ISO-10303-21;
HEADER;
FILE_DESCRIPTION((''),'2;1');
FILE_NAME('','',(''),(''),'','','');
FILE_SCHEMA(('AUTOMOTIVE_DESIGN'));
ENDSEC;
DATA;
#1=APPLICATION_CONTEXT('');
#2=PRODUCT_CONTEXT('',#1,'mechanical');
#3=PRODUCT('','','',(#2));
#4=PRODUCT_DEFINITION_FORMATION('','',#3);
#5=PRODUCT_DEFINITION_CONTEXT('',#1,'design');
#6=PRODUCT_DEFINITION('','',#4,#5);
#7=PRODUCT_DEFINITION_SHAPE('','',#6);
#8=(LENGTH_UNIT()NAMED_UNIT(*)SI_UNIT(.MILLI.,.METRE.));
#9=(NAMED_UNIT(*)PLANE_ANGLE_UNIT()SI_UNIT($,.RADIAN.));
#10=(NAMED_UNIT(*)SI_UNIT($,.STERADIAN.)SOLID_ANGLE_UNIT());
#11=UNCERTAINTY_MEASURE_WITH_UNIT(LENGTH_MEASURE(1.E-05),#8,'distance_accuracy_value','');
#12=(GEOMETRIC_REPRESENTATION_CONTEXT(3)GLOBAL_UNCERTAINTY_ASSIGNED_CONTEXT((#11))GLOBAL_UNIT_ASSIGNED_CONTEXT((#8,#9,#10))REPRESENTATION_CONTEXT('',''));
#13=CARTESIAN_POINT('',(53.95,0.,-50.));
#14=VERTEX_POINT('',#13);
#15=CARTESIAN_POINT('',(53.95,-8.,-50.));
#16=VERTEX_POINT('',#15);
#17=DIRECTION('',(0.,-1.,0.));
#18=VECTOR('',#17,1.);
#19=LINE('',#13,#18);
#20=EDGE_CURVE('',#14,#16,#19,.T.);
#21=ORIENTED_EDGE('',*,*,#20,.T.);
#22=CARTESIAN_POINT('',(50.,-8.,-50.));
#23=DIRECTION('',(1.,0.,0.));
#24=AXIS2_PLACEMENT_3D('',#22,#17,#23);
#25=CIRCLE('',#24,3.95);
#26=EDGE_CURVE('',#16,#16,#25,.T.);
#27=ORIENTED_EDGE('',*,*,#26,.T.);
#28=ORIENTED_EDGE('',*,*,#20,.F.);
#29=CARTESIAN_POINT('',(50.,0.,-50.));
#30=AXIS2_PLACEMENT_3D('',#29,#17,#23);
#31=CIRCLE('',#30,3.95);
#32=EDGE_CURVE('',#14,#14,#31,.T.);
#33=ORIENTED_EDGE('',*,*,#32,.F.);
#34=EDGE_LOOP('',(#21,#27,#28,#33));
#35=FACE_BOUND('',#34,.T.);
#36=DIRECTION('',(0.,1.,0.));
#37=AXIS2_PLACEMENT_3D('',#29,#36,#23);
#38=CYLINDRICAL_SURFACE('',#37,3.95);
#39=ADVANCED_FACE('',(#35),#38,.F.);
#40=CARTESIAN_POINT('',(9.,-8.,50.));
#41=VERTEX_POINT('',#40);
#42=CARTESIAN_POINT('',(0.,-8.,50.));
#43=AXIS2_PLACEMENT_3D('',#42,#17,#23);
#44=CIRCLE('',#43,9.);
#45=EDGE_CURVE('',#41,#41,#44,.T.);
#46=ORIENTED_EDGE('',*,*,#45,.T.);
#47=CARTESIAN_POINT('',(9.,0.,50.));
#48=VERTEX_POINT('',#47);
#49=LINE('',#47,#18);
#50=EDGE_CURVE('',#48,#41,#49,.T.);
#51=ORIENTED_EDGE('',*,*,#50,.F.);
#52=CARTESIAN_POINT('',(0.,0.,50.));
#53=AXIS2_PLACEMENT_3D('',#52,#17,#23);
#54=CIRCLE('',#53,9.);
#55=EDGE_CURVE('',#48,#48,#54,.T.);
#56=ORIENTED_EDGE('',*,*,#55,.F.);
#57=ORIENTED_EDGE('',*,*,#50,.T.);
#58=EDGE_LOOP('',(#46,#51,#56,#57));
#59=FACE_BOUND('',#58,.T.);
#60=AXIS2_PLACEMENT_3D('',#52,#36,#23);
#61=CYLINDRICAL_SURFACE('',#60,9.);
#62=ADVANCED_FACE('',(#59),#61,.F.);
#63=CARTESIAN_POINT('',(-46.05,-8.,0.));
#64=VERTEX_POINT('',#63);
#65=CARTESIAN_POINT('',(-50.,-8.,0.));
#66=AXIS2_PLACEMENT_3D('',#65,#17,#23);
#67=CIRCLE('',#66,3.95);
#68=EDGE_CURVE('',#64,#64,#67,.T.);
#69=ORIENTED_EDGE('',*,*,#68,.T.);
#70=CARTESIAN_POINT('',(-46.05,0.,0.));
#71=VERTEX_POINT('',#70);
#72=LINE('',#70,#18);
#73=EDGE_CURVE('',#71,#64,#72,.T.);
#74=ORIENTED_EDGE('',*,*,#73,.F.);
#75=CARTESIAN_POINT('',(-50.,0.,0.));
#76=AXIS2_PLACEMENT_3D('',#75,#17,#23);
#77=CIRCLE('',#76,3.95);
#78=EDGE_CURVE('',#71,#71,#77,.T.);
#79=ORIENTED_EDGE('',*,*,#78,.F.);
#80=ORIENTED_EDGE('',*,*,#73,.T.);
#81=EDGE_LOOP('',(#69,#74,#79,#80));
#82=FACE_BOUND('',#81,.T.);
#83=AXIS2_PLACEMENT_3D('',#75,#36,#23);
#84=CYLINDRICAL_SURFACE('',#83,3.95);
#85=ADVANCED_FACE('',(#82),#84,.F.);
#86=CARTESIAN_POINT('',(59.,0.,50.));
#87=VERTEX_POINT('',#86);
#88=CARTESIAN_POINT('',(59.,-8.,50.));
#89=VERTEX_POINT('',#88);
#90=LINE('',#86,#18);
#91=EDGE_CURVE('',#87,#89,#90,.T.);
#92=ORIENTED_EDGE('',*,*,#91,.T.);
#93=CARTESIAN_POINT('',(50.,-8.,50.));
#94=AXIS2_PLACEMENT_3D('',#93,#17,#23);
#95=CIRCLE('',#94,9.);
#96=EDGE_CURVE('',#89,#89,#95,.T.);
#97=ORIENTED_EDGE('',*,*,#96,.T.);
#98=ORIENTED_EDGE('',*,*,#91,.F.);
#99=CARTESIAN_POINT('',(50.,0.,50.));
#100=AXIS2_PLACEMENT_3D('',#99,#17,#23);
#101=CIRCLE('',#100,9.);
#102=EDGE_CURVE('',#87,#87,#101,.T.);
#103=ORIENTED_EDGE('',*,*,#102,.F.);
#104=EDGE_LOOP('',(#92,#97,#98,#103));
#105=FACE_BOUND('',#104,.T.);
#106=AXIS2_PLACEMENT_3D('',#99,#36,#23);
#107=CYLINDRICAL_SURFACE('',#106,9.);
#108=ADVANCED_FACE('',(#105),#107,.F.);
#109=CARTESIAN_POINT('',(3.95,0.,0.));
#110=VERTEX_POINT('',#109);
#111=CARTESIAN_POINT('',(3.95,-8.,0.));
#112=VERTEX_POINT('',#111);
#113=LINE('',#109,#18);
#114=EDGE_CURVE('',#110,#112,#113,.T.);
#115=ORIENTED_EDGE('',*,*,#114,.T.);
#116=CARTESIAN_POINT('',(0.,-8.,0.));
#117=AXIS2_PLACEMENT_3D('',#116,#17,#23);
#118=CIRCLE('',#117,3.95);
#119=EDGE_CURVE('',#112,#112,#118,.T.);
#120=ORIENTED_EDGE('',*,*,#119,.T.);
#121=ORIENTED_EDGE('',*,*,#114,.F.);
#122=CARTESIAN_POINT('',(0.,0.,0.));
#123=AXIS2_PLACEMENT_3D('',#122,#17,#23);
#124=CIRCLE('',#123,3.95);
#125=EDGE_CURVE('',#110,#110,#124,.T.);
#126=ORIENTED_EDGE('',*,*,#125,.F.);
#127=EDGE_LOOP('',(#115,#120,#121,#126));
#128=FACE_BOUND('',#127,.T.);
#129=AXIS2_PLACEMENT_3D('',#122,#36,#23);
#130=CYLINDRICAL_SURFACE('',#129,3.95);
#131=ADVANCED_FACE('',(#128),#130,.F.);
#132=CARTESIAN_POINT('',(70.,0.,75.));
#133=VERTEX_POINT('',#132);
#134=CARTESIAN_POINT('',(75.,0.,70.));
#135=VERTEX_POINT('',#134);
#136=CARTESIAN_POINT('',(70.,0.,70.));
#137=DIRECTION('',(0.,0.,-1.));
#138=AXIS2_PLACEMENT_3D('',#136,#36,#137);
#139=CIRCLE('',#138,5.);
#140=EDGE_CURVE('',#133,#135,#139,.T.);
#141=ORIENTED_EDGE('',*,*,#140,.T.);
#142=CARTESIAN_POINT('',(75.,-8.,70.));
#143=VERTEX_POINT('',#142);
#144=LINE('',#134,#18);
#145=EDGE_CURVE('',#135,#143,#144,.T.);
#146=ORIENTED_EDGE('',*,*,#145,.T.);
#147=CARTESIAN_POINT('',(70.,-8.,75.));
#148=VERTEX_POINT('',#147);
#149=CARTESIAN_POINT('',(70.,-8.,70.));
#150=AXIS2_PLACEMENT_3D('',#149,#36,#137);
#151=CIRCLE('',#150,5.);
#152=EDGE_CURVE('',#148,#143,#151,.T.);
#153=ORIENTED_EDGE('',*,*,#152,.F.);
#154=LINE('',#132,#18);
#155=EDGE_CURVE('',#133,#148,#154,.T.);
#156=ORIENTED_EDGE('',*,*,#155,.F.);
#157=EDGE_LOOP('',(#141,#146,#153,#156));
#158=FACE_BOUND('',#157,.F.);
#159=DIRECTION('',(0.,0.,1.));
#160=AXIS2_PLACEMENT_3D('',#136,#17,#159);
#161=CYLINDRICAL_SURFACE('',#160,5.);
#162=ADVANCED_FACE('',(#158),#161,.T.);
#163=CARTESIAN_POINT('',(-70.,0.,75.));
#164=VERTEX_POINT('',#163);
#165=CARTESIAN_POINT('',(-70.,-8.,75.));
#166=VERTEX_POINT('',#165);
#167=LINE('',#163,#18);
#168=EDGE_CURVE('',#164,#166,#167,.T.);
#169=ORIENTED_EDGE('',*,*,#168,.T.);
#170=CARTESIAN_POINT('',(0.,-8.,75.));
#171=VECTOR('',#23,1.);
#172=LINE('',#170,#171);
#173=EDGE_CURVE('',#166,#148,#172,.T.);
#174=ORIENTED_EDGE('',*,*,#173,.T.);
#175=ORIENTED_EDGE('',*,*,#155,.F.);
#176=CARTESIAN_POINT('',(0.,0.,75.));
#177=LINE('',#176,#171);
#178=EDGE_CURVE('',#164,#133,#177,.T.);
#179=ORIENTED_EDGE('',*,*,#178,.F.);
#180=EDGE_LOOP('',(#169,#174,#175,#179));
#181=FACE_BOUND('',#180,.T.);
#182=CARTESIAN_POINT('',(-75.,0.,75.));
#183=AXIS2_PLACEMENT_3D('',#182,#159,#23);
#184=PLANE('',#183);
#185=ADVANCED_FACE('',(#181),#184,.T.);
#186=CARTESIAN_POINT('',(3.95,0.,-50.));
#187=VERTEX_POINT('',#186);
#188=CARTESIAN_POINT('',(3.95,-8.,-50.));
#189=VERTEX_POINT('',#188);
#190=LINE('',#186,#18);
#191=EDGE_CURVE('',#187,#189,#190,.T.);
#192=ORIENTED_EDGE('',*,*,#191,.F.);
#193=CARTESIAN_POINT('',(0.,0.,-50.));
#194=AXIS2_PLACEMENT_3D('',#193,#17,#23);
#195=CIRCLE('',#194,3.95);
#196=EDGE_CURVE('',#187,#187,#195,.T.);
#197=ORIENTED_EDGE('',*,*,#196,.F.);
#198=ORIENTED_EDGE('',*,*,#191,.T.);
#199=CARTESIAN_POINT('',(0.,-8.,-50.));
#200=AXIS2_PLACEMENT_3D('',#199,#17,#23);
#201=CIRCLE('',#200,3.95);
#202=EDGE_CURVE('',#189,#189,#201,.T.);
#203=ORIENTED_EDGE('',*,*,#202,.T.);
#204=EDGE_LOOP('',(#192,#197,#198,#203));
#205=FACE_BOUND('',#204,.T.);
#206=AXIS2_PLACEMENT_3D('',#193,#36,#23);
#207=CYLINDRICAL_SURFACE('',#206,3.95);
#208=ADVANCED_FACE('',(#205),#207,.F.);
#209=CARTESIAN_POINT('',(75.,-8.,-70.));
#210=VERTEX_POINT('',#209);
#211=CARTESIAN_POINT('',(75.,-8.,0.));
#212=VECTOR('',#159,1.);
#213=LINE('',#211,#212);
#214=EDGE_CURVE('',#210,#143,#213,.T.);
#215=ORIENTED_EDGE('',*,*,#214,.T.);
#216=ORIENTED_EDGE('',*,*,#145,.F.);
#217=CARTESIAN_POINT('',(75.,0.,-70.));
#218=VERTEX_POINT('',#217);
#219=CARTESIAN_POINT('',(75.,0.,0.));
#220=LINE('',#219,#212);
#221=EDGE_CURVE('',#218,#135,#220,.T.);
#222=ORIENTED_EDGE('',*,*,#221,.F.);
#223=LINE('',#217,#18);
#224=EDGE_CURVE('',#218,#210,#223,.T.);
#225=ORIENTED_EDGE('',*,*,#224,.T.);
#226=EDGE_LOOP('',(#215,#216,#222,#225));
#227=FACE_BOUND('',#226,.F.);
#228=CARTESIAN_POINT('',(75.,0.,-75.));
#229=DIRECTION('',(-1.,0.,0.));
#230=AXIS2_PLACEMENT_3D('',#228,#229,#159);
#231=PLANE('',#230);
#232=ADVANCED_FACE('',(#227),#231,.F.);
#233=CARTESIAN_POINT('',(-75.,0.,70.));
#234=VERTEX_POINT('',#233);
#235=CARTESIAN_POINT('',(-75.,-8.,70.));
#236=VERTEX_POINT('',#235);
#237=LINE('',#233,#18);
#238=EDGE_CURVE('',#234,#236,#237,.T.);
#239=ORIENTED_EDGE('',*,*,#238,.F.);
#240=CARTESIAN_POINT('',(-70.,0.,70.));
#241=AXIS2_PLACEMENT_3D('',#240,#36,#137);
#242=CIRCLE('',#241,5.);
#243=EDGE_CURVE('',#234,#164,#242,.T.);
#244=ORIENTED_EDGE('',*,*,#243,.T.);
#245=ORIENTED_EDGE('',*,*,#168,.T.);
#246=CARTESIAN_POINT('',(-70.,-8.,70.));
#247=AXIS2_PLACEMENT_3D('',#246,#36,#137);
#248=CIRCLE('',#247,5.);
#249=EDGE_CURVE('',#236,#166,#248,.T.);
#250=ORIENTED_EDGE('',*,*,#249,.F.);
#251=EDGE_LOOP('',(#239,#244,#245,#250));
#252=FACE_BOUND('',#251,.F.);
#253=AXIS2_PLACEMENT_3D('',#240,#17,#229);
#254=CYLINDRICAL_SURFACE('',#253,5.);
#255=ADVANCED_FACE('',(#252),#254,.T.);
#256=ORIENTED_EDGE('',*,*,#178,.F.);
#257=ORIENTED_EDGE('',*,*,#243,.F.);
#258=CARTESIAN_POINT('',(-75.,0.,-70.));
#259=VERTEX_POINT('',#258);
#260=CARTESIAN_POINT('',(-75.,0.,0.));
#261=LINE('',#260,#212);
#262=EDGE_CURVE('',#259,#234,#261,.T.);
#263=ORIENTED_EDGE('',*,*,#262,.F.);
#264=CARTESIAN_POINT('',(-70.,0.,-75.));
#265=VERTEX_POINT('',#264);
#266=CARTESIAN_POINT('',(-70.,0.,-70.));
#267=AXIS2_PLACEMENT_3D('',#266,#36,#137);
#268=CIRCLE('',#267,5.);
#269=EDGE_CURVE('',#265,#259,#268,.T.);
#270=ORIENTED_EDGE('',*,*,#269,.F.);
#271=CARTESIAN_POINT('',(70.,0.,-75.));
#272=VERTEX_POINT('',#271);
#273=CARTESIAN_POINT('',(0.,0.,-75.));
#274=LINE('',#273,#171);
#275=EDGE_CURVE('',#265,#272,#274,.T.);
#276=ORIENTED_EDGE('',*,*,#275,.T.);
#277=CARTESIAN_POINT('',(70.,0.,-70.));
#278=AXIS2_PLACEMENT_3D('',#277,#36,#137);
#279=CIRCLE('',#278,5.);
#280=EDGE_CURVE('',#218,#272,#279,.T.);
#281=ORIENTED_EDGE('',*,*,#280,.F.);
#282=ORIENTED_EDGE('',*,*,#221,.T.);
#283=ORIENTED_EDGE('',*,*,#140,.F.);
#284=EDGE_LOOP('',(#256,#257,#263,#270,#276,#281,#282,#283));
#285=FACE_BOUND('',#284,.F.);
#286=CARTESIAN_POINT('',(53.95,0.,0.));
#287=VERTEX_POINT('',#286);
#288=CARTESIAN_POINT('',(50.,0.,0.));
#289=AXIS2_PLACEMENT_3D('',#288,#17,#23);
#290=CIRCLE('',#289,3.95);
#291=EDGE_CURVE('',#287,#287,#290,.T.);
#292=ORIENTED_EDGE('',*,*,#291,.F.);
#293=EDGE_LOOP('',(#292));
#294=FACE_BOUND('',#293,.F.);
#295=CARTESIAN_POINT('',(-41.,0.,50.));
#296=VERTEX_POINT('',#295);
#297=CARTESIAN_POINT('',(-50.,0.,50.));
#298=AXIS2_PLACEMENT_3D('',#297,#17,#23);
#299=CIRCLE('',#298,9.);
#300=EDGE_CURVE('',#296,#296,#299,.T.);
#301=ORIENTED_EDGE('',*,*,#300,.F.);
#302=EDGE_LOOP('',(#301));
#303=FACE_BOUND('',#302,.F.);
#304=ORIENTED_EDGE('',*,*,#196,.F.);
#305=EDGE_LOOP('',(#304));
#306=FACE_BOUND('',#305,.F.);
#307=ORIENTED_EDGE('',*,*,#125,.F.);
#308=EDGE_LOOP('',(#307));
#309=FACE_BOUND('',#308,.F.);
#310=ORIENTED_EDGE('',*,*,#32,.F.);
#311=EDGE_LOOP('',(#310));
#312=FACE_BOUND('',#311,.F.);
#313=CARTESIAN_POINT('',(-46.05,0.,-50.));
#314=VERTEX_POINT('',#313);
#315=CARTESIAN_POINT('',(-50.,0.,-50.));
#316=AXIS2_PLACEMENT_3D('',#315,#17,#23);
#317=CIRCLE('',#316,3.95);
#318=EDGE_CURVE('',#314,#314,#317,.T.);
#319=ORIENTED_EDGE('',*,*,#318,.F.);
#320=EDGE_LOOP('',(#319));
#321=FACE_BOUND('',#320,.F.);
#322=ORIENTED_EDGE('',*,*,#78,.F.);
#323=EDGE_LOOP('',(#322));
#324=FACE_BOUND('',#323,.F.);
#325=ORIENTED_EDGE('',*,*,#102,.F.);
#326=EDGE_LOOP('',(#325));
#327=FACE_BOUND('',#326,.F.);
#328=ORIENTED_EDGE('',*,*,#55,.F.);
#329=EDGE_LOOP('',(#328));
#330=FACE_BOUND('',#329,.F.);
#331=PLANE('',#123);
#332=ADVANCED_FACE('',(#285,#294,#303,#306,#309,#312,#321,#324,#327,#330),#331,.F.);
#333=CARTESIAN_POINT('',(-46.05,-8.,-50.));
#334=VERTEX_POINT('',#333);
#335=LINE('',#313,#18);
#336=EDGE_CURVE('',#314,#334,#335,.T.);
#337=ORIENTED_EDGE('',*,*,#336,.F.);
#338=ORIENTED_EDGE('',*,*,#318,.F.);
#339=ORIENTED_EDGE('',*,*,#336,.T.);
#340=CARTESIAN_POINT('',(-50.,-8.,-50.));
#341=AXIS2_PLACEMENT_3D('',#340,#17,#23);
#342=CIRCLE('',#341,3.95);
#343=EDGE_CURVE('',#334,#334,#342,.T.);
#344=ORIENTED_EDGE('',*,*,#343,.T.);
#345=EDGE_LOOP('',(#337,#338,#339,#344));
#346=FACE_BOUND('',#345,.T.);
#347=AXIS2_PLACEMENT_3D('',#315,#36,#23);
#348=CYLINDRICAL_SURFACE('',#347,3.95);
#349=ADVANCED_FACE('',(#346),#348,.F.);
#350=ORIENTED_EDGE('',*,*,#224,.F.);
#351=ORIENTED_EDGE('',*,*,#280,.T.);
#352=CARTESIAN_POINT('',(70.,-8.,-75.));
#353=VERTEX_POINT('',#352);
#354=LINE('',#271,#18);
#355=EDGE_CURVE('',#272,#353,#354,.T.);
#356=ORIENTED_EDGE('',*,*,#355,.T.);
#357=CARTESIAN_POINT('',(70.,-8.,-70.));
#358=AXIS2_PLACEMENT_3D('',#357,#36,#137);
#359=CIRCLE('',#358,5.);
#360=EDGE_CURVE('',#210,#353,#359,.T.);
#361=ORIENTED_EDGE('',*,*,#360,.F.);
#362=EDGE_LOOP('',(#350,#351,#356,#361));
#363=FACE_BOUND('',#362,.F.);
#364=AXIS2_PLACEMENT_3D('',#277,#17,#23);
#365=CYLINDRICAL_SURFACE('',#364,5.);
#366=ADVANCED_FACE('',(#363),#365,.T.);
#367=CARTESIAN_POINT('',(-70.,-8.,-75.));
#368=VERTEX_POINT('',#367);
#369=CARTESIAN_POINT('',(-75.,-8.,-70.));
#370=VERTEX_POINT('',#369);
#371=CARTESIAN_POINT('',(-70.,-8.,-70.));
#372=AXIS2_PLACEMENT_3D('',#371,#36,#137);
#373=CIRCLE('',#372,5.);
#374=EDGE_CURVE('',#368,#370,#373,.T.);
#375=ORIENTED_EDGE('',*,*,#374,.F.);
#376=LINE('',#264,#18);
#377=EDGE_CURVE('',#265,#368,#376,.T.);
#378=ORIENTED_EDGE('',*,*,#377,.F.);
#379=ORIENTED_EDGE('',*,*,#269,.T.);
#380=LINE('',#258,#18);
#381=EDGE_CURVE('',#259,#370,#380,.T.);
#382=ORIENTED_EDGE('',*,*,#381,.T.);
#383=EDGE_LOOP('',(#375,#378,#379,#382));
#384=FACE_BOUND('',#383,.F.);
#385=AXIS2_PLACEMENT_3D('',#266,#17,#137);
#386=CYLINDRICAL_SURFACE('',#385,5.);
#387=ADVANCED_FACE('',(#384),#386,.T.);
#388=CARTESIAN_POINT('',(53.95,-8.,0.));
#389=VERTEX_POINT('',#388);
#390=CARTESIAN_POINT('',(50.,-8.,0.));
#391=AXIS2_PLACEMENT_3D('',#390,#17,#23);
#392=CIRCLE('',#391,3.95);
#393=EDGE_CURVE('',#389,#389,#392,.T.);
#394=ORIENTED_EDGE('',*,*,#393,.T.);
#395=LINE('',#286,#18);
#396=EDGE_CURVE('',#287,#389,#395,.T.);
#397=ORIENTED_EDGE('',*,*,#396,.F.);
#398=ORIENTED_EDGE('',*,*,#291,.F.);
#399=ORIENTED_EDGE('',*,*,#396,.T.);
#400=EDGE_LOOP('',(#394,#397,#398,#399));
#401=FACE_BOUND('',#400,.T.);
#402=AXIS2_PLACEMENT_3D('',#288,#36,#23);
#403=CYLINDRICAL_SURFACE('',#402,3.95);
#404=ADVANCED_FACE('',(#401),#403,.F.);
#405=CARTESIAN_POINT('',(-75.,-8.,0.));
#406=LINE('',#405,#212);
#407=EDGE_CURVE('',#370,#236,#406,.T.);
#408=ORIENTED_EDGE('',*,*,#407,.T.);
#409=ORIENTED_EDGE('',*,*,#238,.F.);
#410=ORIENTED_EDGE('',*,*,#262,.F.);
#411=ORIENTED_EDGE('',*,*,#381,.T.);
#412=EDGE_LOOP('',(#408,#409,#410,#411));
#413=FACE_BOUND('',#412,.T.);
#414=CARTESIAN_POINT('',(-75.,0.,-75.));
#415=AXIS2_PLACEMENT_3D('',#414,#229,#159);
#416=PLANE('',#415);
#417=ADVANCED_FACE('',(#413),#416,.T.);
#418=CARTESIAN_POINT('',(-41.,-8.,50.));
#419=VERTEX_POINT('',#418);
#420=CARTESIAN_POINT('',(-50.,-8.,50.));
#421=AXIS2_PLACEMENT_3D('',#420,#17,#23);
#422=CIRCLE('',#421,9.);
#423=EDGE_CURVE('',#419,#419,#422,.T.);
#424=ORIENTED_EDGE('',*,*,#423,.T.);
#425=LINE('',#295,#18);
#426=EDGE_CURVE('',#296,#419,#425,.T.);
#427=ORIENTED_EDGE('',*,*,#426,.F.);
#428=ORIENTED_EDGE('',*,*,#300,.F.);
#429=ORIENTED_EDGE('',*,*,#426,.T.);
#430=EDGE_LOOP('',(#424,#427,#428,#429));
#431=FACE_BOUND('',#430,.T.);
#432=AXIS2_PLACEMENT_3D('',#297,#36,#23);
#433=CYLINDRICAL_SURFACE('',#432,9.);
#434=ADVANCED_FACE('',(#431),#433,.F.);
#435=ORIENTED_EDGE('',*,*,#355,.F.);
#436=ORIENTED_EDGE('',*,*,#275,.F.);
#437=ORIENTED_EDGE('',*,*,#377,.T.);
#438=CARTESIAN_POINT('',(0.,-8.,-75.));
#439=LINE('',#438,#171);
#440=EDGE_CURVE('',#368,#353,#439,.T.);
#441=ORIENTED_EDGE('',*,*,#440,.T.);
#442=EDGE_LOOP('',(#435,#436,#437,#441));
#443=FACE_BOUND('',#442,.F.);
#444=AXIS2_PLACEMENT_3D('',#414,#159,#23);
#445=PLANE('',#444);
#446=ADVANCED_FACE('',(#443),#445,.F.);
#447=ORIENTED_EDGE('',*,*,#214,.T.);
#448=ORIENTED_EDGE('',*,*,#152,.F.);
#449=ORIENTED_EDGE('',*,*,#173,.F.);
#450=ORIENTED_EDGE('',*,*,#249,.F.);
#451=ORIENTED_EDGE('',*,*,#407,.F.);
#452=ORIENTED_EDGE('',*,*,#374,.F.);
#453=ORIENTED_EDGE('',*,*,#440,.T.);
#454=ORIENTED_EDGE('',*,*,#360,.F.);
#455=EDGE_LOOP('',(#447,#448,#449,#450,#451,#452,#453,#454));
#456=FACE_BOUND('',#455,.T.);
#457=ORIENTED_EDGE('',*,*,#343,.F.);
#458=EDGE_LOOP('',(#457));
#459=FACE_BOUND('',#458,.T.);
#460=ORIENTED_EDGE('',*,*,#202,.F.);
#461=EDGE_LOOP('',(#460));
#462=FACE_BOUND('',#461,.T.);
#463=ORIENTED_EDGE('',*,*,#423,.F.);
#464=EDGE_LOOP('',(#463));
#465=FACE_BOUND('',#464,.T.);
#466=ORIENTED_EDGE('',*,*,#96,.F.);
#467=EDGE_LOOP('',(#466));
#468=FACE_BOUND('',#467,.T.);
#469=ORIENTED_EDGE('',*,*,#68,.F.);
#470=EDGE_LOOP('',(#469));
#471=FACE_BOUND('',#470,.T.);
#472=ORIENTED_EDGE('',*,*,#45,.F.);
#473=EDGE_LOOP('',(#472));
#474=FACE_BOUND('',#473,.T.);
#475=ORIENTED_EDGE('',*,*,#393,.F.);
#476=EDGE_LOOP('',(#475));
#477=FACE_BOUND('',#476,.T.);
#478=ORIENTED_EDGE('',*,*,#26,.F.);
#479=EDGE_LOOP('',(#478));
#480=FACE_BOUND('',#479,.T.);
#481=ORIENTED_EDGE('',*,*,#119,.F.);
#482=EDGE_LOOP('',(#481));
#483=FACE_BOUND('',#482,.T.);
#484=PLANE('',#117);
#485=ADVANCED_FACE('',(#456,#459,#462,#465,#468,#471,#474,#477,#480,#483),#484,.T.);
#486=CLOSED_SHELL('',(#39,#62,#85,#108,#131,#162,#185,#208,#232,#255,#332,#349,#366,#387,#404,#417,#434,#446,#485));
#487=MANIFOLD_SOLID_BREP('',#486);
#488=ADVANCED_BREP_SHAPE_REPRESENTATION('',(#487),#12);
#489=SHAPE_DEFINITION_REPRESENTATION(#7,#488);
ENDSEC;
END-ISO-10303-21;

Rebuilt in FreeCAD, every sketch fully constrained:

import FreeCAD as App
import Part
import Sketcher

V = App.Vector
Q = App.Units.Quantity


def edges_at(feature, points):
    """Names of the edges that pass closest to the given points."""
    edges = feature.Shape.Edges
    near = lambda p: min(range(len(edges)), key=lambda i: edges[i].distToShape(Part.Vertex(*p))[0])
    return sorted({f"Edge{near(p) + 1}" for p in points})

doc = App.newDocument("Part")
body = doc.addObject("PartDesign::Body", "Body")

# Sketch on XZ plane
sketch1 = doc.addObject("Sketcher::SketchObject", "Sketch")
body.addObject(sketch1)
sketch1.AttachmentSupport = (doc.XZ_Plane, [""])
sketch1.MapMode = "FlatFace"
sketch1.addGeometry([
    Part.LineSegment(V(-75, 75, 0), V(-75, -75, 0)),  # 0
    Part.LineSegment(V(-75, -75, 0), V(75, -75, 0)),  # 1
    Part.LineSegment(V(75, -75, 0), V(75, 75, 0)),  # 2
    Part.LineSegment(V(75, 75, 0), V(-75, 75, 0)),  # 3
    Part.Circle(V(-50, -50, 0), V(0, 0, 1), 4),  # 4
    Part.Circle(V(-50, 0, 0), V(0, 0, 1), 4),  # 5
    Part.Circle(V(0, -50, 0), V(0, 0, 1), 4),  # 6
    Part.Circle(V(50, -50, 0), V(0, 0, 1), 4),  # 7
    Part.Circle(V(0, 0, 0), V(0, 0, 1), 4),  # 8
    Part.Circle(V(50, 0, 0), V(0, 0, 1), 4),  # 9
    Part.Circle(V(-50, 50, 0), V(0, 0, 1), 9),  # 10
    Part.Circle(V(0, 50, 0), V(0, 0, 1), 9),  # 11
    Part.Circle(V(50, 50, 0), V(0, 0, 1), 9),  # 12
], False)
sketch1.addConstraint([
    Sketcher.Constraint("Coincident", 0, 2, 1, 1),
    Sketcher.Constraint("Coincident", 1, 2, 2, 1),
    Sketcher.Constraint("Coincident", 2, 2, 3, 1),
    Sketcher.Constraint("Coincident", 3, 2, 0, 1),
    Sketcher.Constraint("Vertical", 0),
    Sketcher.Constraint("Horizontal", 1),
    Sketcher.Constraint("Vertical", 2),
    Sketcher.Constraint("Horizontal", 3),
    Sketcher.Constraint("Coincident", 8, 3, -1, 1),
    Sketcher.Constraint("Equal", 4, 5),
    Sketcher.Constraint("Equal", 5, 6),
    Sketcher.Constraint("Equal", 6, 7),
    Sketcher.Constraint("Equal", 7, 8),
    Sketcher.Constraint("Equal", 8, 9),
    Sketcher.Constraint("Equal", 10, 11),
    Sketcher.Constraint("Equal", 11, 12),
    Sketcher.Constraint("Symmetric", 5, 3, 9, 3, -1, 1),
    Sketcher.Constraint("Symmetric", 7, 3, 10, 3, -1, 1),
    Sketcher.Constraint("Symmetric", 6, 3, 11, 3, -1, 1),
    Sketcher.Constraint("Symmetric", 4, 3, 12, 3, -1, 1),
    Sketcher.Constraint("Symmetric", 0, 2, 2, 2, -1, 1),
    Sketcher.Constraint("Symmetric", 4, 3, 7, 3, -2),
    Sketcher.Constraint("PointOnObject", 5, 3, -1),
    Sketcher.Constraint("PointOnObject", 6, 3, -2),
    Sketcher.Constraint("Horizontal", 4, 3, 6, 3),
    Sketcher.Constraint("Vertical", 4, 3, 5, 3),
    Sketcher.Constraint("Equal", 3, 0),
    Sketcher.Constraint("Diameter", 10, Q("18 mm")),
    Sketcher.Constraint("Diameter", 4, Q("7.9 mm")),
    Sketcher.Constraint("DistanceX", 1, 1, 1, 2, Q("150 mm")),
    Sketcher.Constraint("DistanceX", 4, 3, -1, 1, Q("50 mm")),
    Sketcher.Constraint("DistanceY", 4, 3, -1, 1, Q("50 mm")),
])
pad1 = doc.addObject("PartDesign::Pad", "Pad")
body.addObject(pad1)
pad1.Profile = sketch1
pad1.Length = 8
doc.recompute()

fillet = doc.addObject("PartDesign::Fillet", "Fillet")
body.addObject(fillet)
fillet.Base = (pad1, edges_at(pad1, [(75, -4, 75)]))
fillet.Radius = 5
doc.recompute()

fillet2 = doc.addObject("PartDesign::Fillet", "Fillet001")
body.addObject(fillet2)
fillet2.Base = (fillet, edges_at(fillet, [(75, -4, -75)]))
fillet2.Radius = 5
doc.recompute()

fillet3 = doc.addObject("PartDesign::Fillet", "Fillet002")
body.addObject(fillet3)
fillet3.Base = (fillet2, edges_at(fillet2, [(-75, -4, -75)]))
fillet3.Radius = 5
doc.recompute()

fillet4 = doc.addObject("PartDesign::Fillet", "Fillet003")
body.addObject(fillet4)
fillet4.Base = (fillet3, edges_at(fillet3, [(-75, -4, 75)]))
fillet4.Radius = 5

doc.recompute()
